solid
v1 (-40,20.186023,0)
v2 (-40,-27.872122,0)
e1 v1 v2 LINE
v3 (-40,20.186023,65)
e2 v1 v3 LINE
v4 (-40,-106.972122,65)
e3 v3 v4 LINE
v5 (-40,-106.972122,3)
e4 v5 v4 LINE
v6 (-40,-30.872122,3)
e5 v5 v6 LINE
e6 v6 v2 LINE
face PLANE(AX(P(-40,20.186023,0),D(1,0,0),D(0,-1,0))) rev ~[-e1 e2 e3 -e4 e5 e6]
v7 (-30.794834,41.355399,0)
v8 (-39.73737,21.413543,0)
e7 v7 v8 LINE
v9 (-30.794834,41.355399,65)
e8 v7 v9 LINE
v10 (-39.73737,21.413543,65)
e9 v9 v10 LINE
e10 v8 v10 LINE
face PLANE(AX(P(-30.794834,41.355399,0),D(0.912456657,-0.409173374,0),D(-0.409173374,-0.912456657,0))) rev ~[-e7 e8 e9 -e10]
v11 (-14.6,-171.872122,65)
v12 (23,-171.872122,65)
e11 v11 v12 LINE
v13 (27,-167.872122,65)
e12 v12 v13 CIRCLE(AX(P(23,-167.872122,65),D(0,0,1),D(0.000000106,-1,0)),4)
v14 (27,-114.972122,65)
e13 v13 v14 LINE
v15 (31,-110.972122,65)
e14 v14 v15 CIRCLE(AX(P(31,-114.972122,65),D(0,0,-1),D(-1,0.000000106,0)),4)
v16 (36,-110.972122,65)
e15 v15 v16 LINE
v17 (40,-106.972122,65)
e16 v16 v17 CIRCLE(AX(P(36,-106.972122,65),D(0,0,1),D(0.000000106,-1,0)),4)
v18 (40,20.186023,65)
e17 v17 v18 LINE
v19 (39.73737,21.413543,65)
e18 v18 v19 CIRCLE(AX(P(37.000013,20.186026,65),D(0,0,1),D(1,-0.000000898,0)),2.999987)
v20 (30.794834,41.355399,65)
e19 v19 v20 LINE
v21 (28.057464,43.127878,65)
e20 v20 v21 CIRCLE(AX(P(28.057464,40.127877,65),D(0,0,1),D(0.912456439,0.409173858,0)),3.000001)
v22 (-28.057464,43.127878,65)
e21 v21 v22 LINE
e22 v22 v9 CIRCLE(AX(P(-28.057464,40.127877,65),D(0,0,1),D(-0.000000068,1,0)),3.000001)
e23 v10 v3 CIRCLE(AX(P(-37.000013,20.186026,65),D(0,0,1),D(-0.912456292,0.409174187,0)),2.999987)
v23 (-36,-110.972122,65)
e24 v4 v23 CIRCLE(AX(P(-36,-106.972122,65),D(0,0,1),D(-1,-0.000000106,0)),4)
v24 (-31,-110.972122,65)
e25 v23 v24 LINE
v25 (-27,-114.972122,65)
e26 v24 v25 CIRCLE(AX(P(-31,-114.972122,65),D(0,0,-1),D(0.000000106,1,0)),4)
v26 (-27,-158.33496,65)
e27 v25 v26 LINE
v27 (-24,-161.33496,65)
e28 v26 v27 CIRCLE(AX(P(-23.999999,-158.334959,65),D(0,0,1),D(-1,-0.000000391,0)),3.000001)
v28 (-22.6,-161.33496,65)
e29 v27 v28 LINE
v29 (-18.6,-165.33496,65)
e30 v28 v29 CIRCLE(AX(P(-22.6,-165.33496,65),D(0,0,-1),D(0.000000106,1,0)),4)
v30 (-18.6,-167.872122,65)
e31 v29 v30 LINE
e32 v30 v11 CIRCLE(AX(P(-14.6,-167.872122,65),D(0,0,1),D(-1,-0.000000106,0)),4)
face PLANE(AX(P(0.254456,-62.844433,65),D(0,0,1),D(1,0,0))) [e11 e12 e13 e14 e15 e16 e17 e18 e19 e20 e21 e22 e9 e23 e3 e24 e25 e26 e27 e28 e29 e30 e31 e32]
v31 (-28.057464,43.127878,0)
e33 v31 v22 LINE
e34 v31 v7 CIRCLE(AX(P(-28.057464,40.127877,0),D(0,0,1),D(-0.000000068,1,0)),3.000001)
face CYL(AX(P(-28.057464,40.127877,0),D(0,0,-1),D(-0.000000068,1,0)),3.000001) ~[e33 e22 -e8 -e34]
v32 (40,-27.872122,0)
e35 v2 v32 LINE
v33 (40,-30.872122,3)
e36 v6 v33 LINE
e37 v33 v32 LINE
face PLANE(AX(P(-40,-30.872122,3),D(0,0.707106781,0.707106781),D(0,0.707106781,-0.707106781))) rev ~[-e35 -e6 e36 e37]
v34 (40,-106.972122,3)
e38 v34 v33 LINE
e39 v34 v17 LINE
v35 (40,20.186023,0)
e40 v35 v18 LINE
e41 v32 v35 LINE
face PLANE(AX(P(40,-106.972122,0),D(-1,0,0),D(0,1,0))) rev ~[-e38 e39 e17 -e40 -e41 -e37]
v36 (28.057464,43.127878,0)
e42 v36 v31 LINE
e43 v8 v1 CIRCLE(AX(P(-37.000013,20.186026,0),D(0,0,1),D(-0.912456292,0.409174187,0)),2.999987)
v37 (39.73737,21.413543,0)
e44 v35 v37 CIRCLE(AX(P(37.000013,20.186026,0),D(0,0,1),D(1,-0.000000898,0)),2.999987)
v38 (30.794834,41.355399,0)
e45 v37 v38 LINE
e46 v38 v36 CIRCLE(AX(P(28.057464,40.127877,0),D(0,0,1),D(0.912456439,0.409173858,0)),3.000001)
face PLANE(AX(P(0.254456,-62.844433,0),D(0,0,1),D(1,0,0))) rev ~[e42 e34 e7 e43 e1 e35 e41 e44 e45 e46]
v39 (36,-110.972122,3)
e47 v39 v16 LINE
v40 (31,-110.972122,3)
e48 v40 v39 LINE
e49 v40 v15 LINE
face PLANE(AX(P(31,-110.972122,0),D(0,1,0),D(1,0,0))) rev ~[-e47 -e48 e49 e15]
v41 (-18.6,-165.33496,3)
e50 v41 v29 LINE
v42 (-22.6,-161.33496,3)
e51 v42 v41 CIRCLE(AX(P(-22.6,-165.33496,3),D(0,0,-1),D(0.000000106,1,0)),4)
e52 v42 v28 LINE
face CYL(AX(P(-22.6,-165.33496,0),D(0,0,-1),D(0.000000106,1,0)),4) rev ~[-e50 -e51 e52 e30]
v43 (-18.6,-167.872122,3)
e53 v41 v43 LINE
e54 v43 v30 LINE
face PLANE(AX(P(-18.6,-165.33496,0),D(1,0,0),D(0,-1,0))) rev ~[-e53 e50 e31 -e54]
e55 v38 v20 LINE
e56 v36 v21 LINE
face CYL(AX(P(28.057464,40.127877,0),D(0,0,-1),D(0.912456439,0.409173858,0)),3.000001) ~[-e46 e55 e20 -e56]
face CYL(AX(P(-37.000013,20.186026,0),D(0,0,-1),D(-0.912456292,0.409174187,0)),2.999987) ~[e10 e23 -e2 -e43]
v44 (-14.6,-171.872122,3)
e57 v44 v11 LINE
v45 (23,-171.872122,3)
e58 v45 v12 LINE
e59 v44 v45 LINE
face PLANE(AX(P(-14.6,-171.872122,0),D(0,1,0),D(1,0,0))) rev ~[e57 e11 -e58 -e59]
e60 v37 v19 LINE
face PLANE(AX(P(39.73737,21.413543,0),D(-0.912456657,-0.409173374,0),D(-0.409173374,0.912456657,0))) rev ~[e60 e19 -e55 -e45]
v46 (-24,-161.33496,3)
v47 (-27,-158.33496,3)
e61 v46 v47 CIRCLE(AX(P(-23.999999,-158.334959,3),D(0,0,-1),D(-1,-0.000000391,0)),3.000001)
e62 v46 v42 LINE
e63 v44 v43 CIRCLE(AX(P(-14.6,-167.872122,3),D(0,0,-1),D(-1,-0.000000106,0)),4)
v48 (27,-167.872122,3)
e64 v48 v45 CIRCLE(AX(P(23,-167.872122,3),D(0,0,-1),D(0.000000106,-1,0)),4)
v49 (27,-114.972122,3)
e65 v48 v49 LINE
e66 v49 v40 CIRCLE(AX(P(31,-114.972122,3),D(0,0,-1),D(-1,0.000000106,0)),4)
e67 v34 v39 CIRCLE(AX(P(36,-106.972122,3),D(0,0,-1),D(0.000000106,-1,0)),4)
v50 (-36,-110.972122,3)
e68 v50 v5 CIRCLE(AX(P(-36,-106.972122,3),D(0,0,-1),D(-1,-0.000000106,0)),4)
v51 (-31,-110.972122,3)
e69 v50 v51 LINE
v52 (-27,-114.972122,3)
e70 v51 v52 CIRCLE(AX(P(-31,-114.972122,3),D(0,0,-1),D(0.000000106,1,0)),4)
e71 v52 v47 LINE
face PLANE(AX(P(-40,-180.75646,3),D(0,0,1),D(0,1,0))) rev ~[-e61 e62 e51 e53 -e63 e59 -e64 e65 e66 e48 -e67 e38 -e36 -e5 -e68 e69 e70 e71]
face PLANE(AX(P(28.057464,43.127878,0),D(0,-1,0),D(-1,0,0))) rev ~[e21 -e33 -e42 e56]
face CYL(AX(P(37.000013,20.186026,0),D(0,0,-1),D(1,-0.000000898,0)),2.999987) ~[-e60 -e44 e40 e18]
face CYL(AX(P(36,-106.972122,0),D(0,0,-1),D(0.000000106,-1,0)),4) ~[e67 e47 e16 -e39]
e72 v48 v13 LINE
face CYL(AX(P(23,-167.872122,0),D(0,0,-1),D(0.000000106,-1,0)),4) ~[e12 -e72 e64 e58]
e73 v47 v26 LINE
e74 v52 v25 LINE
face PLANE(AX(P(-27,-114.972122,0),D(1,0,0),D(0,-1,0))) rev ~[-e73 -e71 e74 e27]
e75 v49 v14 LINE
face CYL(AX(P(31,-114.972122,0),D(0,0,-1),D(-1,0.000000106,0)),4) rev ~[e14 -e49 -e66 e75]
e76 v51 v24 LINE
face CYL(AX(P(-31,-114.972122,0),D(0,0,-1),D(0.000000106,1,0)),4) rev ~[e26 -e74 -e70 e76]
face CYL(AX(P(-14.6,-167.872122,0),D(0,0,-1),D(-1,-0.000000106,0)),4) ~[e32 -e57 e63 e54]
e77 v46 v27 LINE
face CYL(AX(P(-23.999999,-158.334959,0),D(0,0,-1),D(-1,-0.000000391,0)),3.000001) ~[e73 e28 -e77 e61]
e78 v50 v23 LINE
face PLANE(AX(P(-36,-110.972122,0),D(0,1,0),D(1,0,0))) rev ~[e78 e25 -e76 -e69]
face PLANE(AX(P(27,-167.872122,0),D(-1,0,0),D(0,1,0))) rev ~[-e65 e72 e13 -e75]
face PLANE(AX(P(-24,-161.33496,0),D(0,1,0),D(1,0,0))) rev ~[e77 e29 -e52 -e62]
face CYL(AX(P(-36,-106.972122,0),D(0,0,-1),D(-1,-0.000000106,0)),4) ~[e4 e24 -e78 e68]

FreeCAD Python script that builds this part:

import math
import FreeCAD as App
import Part
import Sketcher
from FreeCAD import Vector
Q = App.Units.Quantity

doc = App.newDocument("Part")
params = doc.addObject("Spreadsheet::Sheet", "Params")
for row, (alias, value) in enumerate([
    ("sketch1_radius", "3.000001 mm"),
    ("sketch1_radius2", "4 mm"),
    ("sketch1_width", "5 mm"),
    ("sketch1_width2", "1.4 mm"),
    ("sketch1_width3", "37.6 mm"),
    ("pad1_length", "65 mm"),
    ("sketch2_height", "3 mm"),
], start=1):
    params.set(f"A{row}", alias)
    params.set(f"B{row}", "=" + value)
    params.setAlias(f"B{row}", alias)

body = doc.addObject("PartDesign::Body", "Body")

sketch1 = body.newObject("Sketcher::SketchObject", "Sketch")
sketch1.AttachmentSupport = (doc.getObject("XY_Plane"), [""])
sketch1.MapMode = "FlatFace"
sketch1.addGeometry([
    Part.ArcOfCircle(Part.Circle(Vector(-28.1, 40.1, 0), Vector(0, 0, 1), 3), math.radians(90), math.radians(156)),
    Part.LineSegment(Vector(-30.8, 41.4, 0), Vector(-39.7, 21.4, 0)),
    Part.ArcOfCircle(Part.Circle(Vector(-37, 20.2, 0), Vector(0, 0, 1), 3), math.radians(156), math.radians(180)),
    Part.LineSegment(Vector(-40, 20.2, 0), Vector(-40, -107, 0)),
    Part.ArcOfCircle(Part.Circle(Vector(-36, -107, 0), Vector(0, 0, 1), 4), math.radians(-180), math.radians(-90)),
    Part.LineSegment(Vector(-36, -111, 0), Vector(-31, -111, 0)),
    Part.ArcOfCircle(Part.Circle(Vector(-31, -115, 0), Vector(0, 0, 1), 4), math.radians(0), math.radians(90)),
    Part.LineSegment(Vector(-27, -115, 0), Vector(-27, -158.3, 0)),
    Part.ArcOfCircle(Part.Circle(Vector(-24, -158.3, 0), Vector(0, 0, 1), 3), math.radians(-180), math.radians(-90)),
    Part.LineSegment(Vector(-24, -161.3, 0), Vector(-22.6, -161.3, 0)),
    Part.ArcOfCircle(Part.Circle(Vector(-22.6, -165.3, 0), Vector(0, 0, 1), 4), math.radians(0), math.radians(90)),
    Part.LineSegment(Vector(-18.6, -165.3, 0), Vector(-18.6, -167.9, 0)),
    Part.ArcOfCircle(Part.Circle(Vector(-14.6, -167.9, 0), Vector(0, 0, 1), 4), math.radians(-180), math.radians(-90)),
    Part.LineSegment(Vector(-14.6, -171.9, 0), Vector(23, -171.9, 0)),
    Part.ArcOfCircle(Part.Circle(Vector(23, -167.9, 0), Vector(0, 0, 1), 4), math.radians(-90), math.radians(0)),
    Part.LineSegment(Vector(27, -167.9, 0), Vector(27, -115, 0)),
    Part.ArcOfCircle(Part.Circle(Vector(31, -115, 0), Vector(0, 0, 1), 4), math.radians(90), math.radians(180)),
    Part.LineSegment(Vector(31, -111, 0), Vector(36, -111, 0)),
    Part.ArcOfCircle(Part.Circle(Vector(36, -107, 0), Vector(0, 0, 1), 4), math.radians(-90), math.radians(0)),
    Part.LineSegment(Vector(40, -107, 0), Vector(40, 20.2, 0)),
    Part.ArcOfCircle(Part.Circle(Vector(37, 20.2, 0), Vector(0, 0, 1), 3), math.radians(0), math.radians(24)),
    Part.LineSegment(Vector(39.7, 21.4, 0), Vector(30.8, 41.4, 0)),
    Part.ArcOfCircle(Part.Circle(Vector(28.1, 40.1, 0), Vector(0, 0, 1), 3), math.radians(24), math.radians(90)),
    Part.LineSegment(Vector(28.1, 43.1, 0), Vector(-28.1, 43.1, 0)),
], False)
sketch1.addConstraint([
    Sketcher.Constraint("Tangent", 0, 2, 1, 1),
    Sketcher.Constraint("Tangent", 1, 2, 2, 1),
    Sketcher.Constraint("Tangent", 2, 2, 3, 1),
    Sketcher.Constraint("Tangent", 3, 2, 4, 1),
    Sketcher.Constraint("Tangent", 4, 2, 5, 1),
    Sketcher.Constraint("Tangent", 5, 2, 6, 2),
    Sketcher.Constraint("Tangent", 6, 1, 7, 1),
    Sketcher.Constraint("Tangent", 7, 2, 8, 1),
    Sketcher.Constraint("Tangent", 8, 2, 9, 1),
    Sketcher.Constraint("Tangent", 9, 2, 10, 2),
    Sketcher.Constraint("Tangent", 10, 1, 11, 1),
    Sketcher.Constraint("Tangent", 11, 2, 12, 1),
    Sketcher.Constraint("Tangent", 12, 2, 13, 1),
    Sketcher.Constraint("Tangent", 13, 2, 14, 1),
    Sketcher.Constraint("Tangent", 14, 2, 15, 1),
    Sketcher.Constraint("Tangent", 15, 2, 16, 2),
    Sketcher.Constraint("Tangent", 16, 1, 17, 1),
    Sketcher.Constraint("Tangent", 17, 2, 18, 1),
    Sketcher.Constraint("Tangent", 18, 2, 19, 1),
    Sketcher.Constraint("Tangent", 19, 2, 20, 1),
    Sketcher.Constraint("Tangent", 20, 2, 21, 1),
    Sketcher.Constraint("Tangent", 21, 2, 22, 1),
    Sketcher.Constraint("Tangent", 22, 2, 23, 1),
    Sketcher.Constraint("Tangent", 23, 2, 0, 1),
    Sketcher.Constraint("Vertical", 3),
    Sketcher.Constraint("Horizontal", 5),
    Sketcher.Constraint("Vertical", 7),
    Sketcher.Constraint("Horizontal", 9),
    Sketcher.Constraint("Vertical", 11),
    Sketcher.Constraint("Horizontal", 13),
    Sketcher.Constraint("Vertical", 15),
    Sketcher.Constraint("Horizontal", 17),
    Sketcher.Constraint("Vertical", 19),
    Sketcher.Constraint("Horizontal", 23),
    Sketcher.Constraint("Equal", 4, 6),
    Sketcher.Constraint("Equal", 0, 8),
    Sketcher.Constraint("Equal", 6, 10),
    Sketcher.Constraint("Equal", 10, 12),
    Sketcher.Constraint("Equal", 12, 14),
    Sketcher.Constraint("Equal", 14, 16),
    Sketcher.Constraint("Equal", 16, 18),
    Sketcher.Constraint("Equal", 2, 20),
    Sketcher.Constraint("Equal", 8, 22),
    Sketcher.Constraint("Symmetric", 6, 3, 16, 3, -2),
    Sketcher.Constraint("Symmetric", 2, 3, 20, 3, -2),
    Sketcher.Constraint("Horizontal", 1, 2, 20, 2),
    Sketcher.Constraint("Radius", 0, 3.000001),
    Sketcher.Constraint("Radius", 4, 4.0),
    Sketcher.Constraint("DistanceX", 5, 1, 5, 2, 5.0),
    Sketcher.Constraint("DistanceX", 9, 1, 9, 2, 1.4),
    Sketcher.Constraint("DistanceX", 13, 1, 13, 2, 37.6),
    Sketcher.Constraint("DistanceY", 15, 1, 15, 2, 52.9),
    Sketcher.Constraint("DistanceY", 4, 3, 0, 3, 147.099999),
    Sketcher.Constraint("Radius", 2, 2.999987),
    Sketcher.Constraint("DistanceY", 11, 2, 11, 1, 2.537162),
    Sketcher.Constraint("DistanceY", -1, 1, 0, 2, 41.355399),
    Sketcher.Constraint("DistanceX", 23, 2, 23, 1, 56.114928),
    Sketcher.Constraint("DistanceY", 3, 2, 3, 1, 127.158145),
])
sketch1.setExpression("Constraints[46]", "Params.sketch1_radius")
sketch1.setExpression("Constraints[47]", "Params.sketch1_radius2")
sketch1.setExpression("Constraints[48]", "Params.sketch1_width")
sketch1.setExpression("Constraints[49]", "Params.sketch1_width2")
sketch1.setExpression("Constraints[50]", "Params.sketch1_width3")
pad1 = body.newObject("PartDesign::Pad", "Pad")
pad1.Profile = sketch1
pad1.setExpression("Length", "Params.pad1_length")

sketch2 = body.newObject("Sketcher::SketchObject", "Sketch001")
sketch2.AttachmentSupport = (doc.getObject("YZ_Plane"), [""])
sketch2.MapMode = "FlatFace"
sketch2.AttachmentOffset = App.Placement(Vector(0, 0, -40), App.Rotation())
sketch2.addGeometry([
    Part.LineSegment(Vector(-30.9, 3, 0), Vector(-27.9, 0, 0)),
    Part.LineSegment(Vector(-27.9, 0, 0), Vector(-180.8, 0, 0)),
    Part.LineSegment(Vector(-180.8, 0, 0), Vector(-180.8, 3, 0)),
    Part.LineSegment(Vector(-180.8, 3, 0), Vector(-30.9, 3, 0)),
], False)
sketch2.addConstraint([
    Sketcher.Constraint("Coincident", 0, 2, 1, 1),
    Sketcher.Constraint("Coincident", 1, 2, 2, 1),
    Sketcher.Constraint("Coincident", 2, 2, 3, 1),
    Sketcher.Constraint("Coincident", 3, 2, 0, 1),
    Sketcher.Constraint("Horizontal", 1),
    Sketcher.Constraint("Vertical", 2),
    Sketcher.Constraint("Horizontal", 3),
    Sketcher.Constraint("PointOnObject", 0, 2, -1),
    Sketcher.Constraint("DistanceY", 2, 1, 2, 2, 3.0),
    Sketcher.Constraint("Angle", 0, Q("-45 deg")),
    Sketcher.Constraint("DistanceX", 1, 2, 1, 1, 152.884338),
    Sketcher.Constraint("DistanceX", 1, 2, -1, 1, 180.75646),
])
sketch2.setExpression("Constraints[8]", "Params.sketch2_height")
pocket1 = body.newObject("PartDesign::Pocket", "Pocket")
pocket1.Profile = sketch2
pocket1.Type = "ThroughAll"
pocket1.Reversed = True

doc.recompute()
